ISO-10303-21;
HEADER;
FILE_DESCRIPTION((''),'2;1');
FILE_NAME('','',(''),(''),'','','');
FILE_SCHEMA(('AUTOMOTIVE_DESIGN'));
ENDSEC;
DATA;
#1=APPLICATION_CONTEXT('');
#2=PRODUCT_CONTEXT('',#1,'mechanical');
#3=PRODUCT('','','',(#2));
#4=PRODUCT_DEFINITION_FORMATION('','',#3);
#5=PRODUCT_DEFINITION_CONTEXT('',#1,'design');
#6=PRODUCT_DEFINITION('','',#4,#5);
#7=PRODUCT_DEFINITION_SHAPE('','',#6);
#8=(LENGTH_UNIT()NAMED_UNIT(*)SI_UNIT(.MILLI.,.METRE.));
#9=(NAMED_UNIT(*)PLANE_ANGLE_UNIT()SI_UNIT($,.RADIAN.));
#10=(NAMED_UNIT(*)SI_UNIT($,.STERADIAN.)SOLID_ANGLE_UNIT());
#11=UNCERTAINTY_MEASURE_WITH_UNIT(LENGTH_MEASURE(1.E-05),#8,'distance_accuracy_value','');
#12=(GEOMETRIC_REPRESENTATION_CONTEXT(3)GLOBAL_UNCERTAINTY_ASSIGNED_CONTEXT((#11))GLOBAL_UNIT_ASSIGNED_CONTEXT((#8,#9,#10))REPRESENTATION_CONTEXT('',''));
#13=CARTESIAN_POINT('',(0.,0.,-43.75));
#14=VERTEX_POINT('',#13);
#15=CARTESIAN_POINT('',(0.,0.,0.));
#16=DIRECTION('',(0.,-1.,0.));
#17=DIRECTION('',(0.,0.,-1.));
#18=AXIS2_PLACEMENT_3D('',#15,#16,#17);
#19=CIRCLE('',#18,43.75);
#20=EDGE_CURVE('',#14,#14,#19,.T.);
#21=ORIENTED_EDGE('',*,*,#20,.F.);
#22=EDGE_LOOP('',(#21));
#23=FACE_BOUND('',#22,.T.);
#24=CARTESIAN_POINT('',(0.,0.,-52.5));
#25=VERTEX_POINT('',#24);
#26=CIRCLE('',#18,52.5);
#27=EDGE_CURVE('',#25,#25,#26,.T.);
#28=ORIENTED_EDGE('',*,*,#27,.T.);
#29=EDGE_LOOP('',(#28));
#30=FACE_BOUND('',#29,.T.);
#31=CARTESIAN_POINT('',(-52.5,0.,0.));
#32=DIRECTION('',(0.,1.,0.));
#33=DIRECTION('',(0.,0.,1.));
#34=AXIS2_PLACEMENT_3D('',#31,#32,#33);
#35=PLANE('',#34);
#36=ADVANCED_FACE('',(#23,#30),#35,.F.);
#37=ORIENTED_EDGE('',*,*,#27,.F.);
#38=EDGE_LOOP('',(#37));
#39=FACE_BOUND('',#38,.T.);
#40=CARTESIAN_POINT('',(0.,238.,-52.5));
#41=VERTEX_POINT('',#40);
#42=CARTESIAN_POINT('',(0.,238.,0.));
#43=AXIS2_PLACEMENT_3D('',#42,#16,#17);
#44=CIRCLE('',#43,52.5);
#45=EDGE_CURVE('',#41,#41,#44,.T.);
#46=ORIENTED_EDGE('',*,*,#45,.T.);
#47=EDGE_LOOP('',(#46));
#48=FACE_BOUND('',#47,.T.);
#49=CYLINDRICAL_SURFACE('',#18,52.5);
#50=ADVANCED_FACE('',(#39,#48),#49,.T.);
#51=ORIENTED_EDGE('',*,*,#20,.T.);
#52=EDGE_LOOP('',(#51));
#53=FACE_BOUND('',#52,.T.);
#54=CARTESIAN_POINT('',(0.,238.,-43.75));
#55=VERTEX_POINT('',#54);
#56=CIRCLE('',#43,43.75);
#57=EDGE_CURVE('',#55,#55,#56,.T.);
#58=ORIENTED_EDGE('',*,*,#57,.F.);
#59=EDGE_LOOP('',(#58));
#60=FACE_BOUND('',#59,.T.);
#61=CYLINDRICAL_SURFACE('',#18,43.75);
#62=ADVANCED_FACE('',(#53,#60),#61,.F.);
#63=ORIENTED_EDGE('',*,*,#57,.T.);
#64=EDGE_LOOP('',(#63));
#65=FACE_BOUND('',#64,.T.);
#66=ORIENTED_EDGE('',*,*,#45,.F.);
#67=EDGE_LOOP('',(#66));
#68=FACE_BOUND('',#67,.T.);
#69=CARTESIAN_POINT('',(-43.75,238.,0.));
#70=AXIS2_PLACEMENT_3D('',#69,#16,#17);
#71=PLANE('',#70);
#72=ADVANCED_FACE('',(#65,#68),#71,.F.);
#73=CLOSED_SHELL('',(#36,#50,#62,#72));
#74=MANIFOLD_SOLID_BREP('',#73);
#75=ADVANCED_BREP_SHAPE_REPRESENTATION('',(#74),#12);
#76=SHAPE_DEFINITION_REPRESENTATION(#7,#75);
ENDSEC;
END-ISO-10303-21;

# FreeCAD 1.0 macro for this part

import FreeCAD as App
import Part
import Sketcher
from FreeCAD import Vector


def add_polygon(sketch, points):
    """Adds a closed chain of lines whose ends are joined by coincident constraints."""
    first, n = sketch.GeometryCount, len(points)
    for a, b in zip(points, points[1:] + points[:1]):
        sketch.addGeometry(Part.LineSegment(App.Vector(*a, 0), App.Vector(*b, 0)), False)
    for i in range(n):
        sketch.addConstraint(Sketcher.Constraint("Coincident", first + i, 2, first + (i + 1) % n, 1))

doc = App.newDocument("Part")
body = doc.addObject("PartDesign::Body", "Body")

# Sketch on XY plane
sketch1 = body.newObject("Sketcher::SketchObject", "Sketch")
sketch1.AttachmentSupport = (doc.getObject("XY_Plane"), [""])
sketch1.MapMode = "FlatFace"
add_polygon(sketch1, [(-52.5, 238), (-52.5, 0), (-43.75, 0), (-43.75, 238)])  # lines 0-3
sketch1.addConstraint(Sketcher.Constraint("Vertical", 0))
sketch1.addConstraint(Sketcher.Constraint("Horizontal", 1))
sketch1.addConstraint(Sketcher.Constraint("Vertical", 2))
sketch1.addConstraint(Sketcher.Constraint("Horizontal", 3))
sketch1.addConstraint(Sketcher.Constraint("PointOnObject", 0, 2, -1))
sketch1.addConstraint(Sketcher.Constraint("DistanceY", 0, 2, 0, 1, 238.0))
sketch1.addConstraint(Sketcher.Constraint("DistanceX", 1, 1, 1, 2, 8.75))
sketch1.addConstraint(Sketcher.Constraint("DistanceX", 0, 2, -1, 1, 52.5))
revolution = body.newObject("PartDesign::Revolution", "Revolution")
revolution.Profile = sketch1
revolution.ReferenceAxis = (sketch1, ["V_Axis"])
revolution.Angle = 360

doc.recompute()
